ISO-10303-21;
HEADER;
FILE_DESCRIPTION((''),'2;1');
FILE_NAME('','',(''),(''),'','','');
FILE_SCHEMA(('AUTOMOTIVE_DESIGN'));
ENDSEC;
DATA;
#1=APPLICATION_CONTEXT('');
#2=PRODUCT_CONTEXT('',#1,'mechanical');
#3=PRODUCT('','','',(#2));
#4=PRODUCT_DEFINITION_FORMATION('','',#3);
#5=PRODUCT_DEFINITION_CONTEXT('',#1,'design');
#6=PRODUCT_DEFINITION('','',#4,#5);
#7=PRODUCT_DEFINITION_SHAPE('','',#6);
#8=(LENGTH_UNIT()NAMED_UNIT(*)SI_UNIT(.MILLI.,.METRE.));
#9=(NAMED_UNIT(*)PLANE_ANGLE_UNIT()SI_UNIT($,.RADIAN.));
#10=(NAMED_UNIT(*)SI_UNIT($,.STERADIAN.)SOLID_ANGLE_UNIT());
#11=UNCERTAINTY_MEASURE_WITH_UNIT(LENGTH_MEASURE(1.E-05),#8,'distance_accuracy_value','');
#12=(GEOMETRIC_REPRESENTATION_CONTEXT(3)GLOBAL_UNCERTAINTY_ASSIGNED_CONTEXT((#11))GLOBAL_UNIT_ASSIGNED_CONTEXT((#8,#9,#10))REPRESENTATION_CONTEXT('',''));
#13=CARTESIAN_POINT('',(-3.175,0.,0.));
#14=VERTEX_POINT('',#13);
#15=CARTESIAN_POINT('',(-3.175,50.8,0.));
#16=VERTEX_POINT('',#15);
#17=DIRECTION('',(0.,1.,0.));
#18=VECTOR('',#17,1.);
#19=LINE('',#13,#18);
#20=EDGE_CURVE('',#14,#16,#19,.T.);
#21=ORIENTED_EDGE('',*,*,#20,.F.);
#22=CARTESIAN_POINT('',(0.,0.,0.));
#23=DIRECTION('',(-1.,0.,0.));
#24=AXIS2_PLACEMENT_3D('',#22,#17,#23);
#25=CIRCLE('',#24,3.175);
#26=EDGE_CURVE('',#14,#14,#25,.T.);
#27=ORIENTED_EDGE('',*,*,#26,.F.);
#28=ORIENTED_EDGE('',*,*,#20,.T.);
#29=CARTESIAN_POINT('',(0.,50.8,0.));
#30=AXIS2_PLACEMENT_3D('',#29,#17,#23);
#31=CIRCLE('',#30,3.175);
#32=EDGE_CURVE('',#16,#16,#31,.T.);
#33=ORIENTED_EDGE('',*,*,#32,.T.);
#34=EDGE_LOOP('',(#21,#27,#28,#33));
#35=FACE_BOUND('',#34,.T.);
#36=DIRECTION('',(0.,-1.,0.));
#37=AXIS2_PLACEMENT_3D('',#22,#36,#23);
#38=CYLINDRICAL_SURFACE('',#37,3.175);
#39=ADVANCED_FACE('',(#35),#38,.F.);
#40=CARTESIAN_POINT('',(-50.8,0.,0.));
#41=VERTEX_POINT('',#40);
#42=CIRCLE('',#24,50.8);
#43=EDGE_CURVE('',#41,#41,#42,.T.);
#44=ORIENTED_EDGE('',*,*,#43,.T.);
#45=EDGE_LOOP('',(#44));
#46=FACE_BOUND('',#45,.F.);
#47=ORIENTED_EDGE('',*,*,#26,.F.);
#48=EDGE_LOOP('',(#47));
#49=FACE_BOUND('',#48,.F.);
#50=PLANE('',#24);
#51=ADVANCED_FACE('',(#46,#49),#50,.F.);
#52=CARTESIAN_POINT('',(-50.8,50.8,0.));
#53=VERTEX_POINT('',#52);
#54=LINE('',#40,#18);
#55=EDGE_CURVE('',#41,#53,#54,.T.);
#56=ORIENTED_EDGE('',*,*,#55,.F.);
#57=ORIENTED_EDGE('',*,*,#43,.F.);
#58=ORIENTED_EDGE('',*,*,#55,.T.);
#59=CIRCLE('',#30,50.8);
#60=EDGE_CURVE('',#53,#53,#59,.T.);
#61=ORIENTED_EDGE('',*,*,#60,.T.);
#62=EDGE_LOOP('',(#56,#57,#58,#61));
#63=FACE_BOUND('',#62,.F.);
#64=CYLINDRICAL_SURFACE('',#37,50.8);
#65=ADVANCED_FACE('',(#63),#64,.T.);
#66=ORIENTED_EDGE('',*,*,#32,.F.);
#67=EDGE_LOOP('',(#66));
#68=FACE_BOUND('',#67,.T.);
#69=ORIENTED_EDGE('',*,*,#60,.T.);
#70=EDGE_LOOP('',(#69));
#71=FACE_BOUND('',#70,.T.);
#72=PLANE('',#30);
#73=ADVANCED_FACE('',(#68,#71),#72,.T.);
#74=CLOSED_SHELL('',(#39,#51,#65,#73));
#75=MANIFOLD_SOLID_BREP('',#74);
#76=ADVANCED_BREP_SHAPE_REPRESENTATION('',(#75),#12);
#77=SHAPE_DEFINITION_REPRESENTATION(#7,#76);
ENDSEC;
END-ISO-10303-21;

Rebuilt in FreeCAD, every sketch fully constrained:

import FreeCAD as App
import Part
import Sketcher
from FreeCAD import Vector
Q = App.Units.Quantity

doc = App.newDocument("Part")
body = doc.addObject("PartDesign::Body", "Body")

# Sketch on XZ plane
sketch1 = body.newObject("Sketcher::SketchObject", "Sketch")
sketch1.AttachmentSupport = (doc.getObject("XZ_Plane"), [""])
sketch1.MapMode = "FlatFace"
sketch1.addGeometry([
    Part.Circle(Vector(0, 0, 0), Vector(0, 0, 1), 50.8),
    Part.Circle(Vector(0, 0, 0), Vector(0, 0, 1), 3.2),
], False)
sketch1.addConstraint([
    Sketcher.Constraint("Coincident", 0, 3, -1, 1),
    Sketcher.Constraint("Coincident", 1, 3, -1, 1),
    Sketcher.Constraint("Diameter", 0, Q("4 in")),
    Sketcher.Constraint("Diameter", 1, Q("0.25 in")),
])
pad1 = body.newObject("PartDesign::Pad", "Pad")
pad1.Profile = sketch1
pad1.Length = Q("2 in")
pad1.Reversed = True

doc.recompute()
